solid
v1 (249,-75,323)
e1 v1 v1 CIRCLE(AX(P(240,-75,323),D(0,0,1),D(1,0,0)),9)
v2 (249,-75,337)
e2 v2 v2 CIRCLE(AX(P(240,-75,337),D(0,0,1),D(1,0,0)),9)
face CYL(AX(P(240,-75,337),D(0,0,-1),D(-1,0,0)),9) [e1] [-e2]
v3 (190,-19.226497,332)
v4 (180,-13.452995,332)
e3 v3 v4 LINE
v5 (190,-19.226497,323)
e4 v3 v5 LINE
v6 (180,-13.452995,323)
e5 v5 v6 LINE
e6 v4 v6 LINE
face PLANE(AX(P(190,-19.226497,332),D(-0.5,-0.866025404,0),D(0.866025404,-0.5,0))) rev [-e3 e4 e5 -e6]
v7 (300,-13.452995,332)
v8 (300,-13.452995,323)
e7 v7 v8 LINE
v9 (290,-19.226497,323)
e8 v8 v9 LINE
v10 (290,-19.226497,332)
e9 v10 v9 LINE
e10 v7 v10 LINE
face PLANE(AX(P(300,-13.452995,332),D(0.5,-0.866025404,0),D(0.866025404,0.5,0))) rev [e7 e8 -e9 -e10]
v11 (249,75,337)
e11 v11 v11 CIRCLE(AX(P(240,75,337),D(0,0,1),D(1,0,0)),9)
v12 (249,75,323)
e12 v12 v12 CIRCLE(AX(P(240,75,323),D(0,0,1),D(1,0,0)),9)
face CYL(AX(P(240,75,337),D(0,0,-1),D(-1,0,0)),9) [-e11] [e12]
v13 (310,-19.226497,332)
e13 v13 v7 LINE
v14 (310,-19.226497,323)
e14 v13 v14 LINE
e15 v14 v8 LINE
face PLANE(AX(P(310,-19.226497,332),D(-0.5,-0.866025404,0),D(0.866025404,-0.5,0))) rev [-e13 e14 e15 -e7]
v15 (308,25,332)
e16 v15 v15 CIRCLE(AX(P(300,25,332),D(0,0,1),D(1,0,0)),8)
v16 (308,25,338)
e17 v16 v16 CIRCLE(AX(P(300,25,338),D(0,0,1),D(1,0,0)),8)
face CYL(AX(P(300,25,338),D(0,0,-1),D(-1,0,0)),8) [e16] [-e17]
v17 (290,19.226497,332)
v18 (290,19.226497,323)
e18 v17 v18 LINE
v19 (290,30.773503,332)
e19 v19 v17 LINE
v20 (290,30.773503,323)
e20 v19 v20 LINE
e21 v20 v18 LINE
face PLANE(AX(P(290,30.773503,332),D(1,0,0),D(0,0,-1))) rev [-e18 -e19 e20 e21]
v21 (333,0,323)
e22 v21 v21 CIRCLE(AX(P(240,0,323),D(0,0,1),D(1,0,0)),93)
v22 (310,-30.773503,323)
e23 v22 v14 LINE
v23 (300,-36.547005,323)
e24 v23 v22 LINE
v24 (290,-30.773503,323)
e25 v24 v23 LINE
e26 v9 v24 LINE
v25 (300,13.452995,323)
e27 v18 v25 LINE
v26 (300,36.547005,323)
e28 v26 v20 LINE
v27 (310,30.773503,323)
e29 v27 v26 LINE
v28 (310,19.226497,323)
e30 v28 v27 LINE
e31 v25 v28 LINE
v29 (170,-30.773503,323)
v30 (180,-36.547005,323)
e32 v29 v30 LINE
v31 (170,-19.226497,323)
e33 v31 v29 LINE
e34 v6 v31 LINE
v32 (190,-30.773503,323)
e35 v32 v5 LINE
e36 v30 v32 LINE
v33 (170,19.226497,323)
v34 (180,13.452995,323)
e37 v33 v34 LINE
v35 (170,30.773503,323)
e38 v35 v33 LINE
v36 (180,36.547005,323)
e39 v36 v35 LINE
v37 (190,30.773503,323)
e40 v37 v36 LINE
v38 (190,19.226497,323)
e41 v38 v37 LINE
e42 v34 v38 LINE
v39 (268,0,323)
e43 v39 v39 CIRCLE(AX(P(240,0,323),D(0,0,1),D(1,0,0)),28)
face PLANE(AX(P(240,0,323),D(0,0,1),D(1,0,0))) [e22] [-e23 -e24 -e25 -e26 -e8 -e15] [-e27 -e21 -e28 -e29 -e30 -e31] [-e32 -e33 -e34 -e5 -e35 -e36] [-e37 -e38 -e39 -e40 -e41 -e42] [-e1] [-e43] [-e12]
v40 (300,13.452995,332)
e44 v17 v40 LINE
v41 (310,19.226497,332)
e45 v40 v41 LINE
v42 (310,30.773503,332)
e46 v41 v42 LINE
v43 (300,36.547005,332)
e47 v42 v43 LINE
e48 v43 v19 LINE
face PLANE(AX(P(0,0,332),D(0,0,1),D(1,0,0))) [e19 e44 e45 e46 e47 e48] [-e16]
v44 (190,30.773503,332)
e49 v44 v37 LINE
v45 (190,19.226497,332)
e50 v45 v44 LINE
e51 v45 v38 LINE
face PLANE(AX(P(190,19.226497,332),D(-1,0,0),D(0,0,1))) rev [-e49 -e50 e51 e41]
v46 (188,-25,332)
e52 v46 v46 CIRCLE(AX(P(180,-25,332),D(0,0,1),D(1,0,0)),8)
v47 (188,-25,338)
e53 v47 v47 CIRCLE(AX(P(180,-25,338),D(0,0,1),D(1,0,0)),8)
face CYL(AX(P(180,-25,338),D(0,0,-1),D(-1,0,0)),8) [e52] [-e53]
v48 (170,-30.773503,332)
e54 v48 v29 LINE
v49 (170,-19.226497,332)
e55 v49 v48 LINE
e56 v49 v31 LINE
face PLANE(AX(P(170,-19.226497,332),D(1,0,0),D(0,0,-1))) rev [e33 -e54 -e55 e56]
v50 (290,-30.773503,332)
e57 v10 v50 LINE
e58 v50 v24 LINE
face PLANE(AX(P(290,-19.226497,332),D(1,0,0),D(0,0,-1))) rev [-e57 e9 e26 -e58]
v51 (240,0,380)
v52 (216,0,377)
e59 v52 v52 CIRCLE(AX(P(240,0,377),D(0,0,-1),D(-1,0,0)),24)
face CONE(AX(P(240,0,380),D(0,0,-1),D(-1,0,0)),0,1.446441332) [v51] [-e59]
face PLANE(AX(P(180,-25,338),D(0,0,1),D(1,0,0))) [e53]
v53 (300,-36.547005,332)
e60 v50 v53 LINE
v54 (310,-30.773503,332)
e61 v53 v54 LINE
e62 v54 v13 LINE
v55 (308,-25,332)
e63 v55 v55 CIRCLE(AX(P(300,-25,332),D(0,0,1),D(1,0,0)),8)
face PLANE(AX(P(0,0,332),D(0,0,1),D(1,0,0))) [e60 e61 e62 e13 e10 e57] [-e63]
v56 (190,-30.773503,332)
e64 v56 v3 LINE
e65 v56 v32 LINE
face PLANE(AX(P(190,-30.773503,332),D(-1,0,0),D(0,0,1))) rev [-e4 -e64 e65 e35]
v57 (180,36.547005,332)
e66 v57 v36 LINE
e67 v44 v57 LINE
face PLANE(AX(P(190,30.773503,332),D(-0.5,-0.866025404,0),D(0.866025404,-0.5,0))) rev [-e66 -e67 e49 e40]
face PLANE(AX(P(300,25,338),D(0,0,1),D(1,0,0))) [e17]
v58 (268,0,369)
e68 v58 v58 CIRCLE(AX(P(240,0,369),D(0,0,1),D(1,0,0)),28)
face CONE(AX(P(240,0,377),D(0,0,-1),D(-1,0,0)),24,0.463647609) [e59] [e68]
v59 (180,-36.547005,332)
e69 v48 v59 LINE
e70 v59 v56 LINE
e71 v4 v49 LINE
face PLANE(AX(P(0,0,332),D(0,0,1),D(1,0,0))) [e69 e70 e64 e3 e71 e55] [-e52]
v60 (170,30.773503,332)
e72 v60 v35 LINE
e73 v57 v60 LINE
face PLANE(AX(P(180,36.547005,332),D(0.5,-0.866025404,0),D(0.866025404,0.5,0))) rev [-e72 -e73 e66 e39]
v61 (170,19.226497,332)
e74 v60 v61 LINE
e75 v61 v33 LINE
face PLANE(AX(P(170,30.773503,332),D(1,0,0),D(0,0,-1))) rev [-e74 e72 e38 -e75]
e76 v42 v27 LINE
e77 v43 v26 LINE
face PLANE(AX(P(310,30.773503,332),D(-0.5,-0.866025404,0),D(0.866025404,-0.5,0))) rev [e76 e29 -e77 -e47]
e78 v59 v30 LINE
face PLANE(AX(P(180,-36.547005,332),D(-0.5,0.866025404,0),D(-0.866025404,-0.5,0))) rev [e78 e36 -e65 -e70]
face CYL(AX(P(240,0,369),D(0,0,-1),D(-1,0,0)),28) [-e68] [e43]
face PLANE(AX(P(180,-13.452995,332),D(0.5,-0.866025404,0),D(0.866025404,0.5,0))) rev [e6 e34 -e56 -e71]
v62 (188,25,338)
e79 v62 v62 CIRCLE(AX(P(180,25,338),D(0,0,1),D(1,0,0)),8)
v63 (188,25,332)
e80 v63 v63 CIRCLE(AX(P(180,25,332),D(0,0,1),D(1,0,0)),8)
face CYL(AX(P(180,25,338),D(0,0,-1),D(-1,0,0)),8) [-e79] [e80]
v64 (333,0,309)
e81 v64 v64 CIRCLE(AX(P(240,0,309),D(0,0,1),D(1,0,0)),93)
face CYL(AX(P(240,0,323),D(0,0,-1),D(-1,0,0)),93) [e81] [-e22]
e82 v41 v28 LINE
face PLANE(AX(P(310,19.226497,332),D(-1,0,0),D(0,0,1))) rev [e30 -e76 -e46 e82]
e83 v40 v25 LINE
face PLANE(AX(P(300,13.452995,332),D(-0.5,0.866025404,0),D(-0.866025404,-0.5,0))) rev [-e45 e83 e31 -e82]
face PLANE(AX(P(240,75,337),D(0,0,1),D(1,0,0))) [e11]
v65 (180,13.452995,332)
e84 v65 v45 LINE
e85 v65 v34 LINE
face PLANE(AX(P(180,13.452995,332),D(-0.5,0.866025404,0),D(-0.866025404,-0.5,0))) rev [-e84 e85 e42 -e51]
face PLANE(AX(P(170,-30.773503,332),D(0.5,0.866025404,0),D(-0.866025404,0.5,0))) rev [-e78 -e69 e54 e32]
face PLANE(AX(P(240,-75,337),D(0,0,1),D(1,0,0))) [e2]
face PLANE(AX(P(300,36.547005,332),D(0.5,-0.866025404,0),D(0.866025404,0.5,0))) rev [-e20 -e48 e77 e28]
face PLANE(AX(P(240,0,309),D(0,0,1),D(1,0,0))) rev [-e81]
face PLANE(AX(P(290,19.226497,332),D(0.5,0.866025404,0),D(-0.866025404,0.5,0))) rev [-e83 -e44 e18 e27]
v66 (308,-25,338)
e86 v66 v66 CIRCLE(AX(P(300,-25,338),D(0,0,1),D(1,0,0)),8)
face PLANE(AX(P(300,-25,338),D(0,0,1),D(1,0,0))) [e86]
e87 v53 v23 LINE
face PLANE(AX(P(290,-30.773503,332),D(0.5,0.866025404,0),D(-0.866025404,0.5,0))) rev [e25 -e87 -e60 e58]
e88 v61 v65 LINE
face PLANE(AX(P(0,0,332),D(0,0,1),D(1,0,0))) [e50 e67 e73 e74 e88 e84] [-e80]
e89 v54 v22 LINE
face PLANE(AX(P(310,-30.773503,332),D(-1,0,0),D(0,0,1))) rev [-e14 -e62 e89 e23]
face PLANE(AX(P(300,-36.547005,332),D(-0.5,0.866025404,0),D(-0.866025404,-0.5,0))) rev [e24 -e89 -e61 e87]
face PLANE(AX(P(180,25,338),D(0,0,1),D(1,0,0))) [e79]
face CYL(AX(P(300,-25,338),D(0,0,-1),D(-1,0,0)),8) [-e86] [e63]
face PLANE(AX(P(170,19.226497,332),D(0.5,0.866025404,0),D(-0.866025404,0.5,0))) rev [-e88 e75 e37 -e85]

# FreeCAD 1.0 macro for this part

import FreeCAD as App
import Part
import Sketcher

V = App.Vector
Q = App.Units.Quantity


def add_polygon(sketch, points):
    """Adds a closed chain of lines whose ends are joined by coincident constraints."""
    first, n = sketch.GeometryCount, len(points)
    for a, b in zip(points, points[1:] + points[:1]):
        sketch.addGeometry(Part.LineSegment(App.Vector(*a, 0), App.Vector(*b, 0)), False)
    for i in range(n):
        sketch.addConstraint(Sketcher.Constraint("Coincident", first + i, 2, first + (i + 1) % n, 1))

doc = App.newDocument("Part")
body = doc.addObject("PartDesign::Body", "Body")

# Sketch on XY plane
sketch1 = body.newObject("Sketcher::SketchObject", "Sketch")
sketch1.AttachmentSupport = (doc.getObject("XY_Plane"), [""])
sketch1.MapMode = "FlatFace"
sketch1.AttachmentOffset = App.Placement(V(0, 0, 309), App.Rotation())
sketch1.addGeometry(Part.Circle(V(240, 0, 0), V(0, 0, 1), 93), False)
sketch1.addConstraint([
    Sketcher.Constraint("PointOnObject", 0, 3, -1),
    Sketcher.Constraint("Diameter", 0, 186.0),
    Sketcher.Constraint("DistanceX", -1, 1, 0, 3, 240.0),
])
pad1 = body.newObject("PartDesign::Pad", "Pad")
pad1.Profile = sketch1
pad1.Length = 14
body2 = doc.addObject("PartDesign::Body", "Body001")

# Sketch on XY plane
sketch2 = body2.newObject("Sketcher::SketchObject", "Sketch001")
sketch2.AttachmentSupport = (doc.getObject("XY_Plane001"), [""])
sketch2.MapMode = "FlatFace"
sketch2.AttachmentOffset = App.Placement(V(0, 0, 323), App.Rotation())
sketch2.addGeometry(Part.Circle(V(240, 0, 0), V(0, 0, 1), 28), False)
sketch2.addConstraint([
    Sketcher.Constraint("PointOnObject", 0, 3, -1),
    Sketcher.Constraint("Diameter", 0, 56.0),
    Sketcher.Constraint("DistanceX", -1, 1, 0, 3, 240.0),
])
pad2 = body2.newObject("PartDesign::Pad", "Pad001")
pad2.Profile = sketch2
pad2.Length = 46
body3 = doc.addObject("PartDesign::Body", "Body002")

# Sketch on XZ plane
sketch3 = body3.newObject("Sketcher::SketchObject", "Sketch002")
sketch3.AttachmentSupport = (doc.getObject("XZ_Plane002"), [""])
sketch3.MapMode = "FlatFace"
add_polygon(sketch3, [(268, 369), (240, 369), (240, 380), (264, 377)])  # lines 0-3
sketch3.addGeometry(Part.LineSegment(V(240, 369, 0), V(240, 380, 0)), True)  # axis
sketch3.addConstraint([
    Sketcher.Constraint("Horizontal", 0),
    Sketcher.Constraint("Vertical", 1),
    Sketcher.Constraint("Vertical", 4),
    Sketcher.Constraint("Coincident", 4, 1, 0, 2),
    Sketcher.Constraint("Equal", 1, 4),
    Sketcher.Constraint("DistanceX", 0, 2, 0, 1, 28.0),
    Sketcher.Constraint("DistanceY", 1, 1, 1, 2, 11.0),
    Sketcher.Constraint("DistanceX", -1, 1, 0, 2, 240.0),
    Sketcher.Constraint("DistanceY", -1, 1, 0, 2, 369.0),
    Sketcher.Constraint("DistanceX", -1, 1, 2, 2, 264.0),
    Sketcher.Constraint("DistanceY", -1, 1, 2, 2, 377.0),
])
revolution = body3.newObject("PartDesign::Revolution", "Revolution")
revolution.Profile = sketch3
revolution.ReferenceAxis = (sketch3, ["Axis0"])
revolution.Angle = 360
body4 = doc.addObject("PartDesign::Body", "Body003")

# Sketch on XY plane
sketch4 = body4.newObject("Sketcher::SketchObject", "Sketch003")
sketch4.AttachmentSupport = (doc.getObject("XY_Plane003"), [""])
sketch4.MapMode = "FlatFace"
sketch4.AttachmentOffset = App.Placement(V(0, 0, 323), App.Rotation())
add_polygon(sketch4, [(310, 31), (300, 37), (290, 31), (290, 19), (300, 13), (310, 19)])  # lines 0-5
sketch4.addConstraint([
    Sketcher.Constraint("Vertical", 2),
    Sketcher.Constraint("Vertical", 5),
    Sketcher.Constraint("Parallel", 0, 3),
    Sketcher.Constraint("Parallel", 1, 4),
    Sketcher.Constraint("Horizontal", 2, 2, 4, 2),
    Sketcher.Constraint("Horizontal", 1, 2, 5, 2),
    Sketcher.Constraint("Vertical", 0, 2, 3, 2),
    Sketcher.Constraint("Angle", 0, Q("150 deg")),
    Sketcher.Constraint("DistanceX", -1, 1, 0, 2, 300.0),
    Sketcher.Constraint("DistanceX", -1, 1, 1, 2, 290.0),
    Sketcher.Constraint("DistanceY", 2, 2, 2, 1, 11.547005),
    Sketcher.Constraint("DistanceY", -1, 1, 0, 2, 36.547005),
])
pad3 = body4.newObject("PartDesign::Pad", "Pad002")
pad3.Profile = sketch4
pad3.Length = 9
body5 = doc.addObject("PartDesign::Body", "Body004")

# Sketch on XY plane
sketch5 = body5.newObject("Sketcher::SketchObject", "Sketch004")
sketch5.AttachmentSupport = (doc.getObject("XY_Plane004"), [""])
sketch5.MapMode = "FlatFace"
sketch5.AttachmentOffset = App.Placement(V(0, 0, 332), App.Rotation())
sketch5.addGeometry(Part.Circle(V(300, 25, 0), V(0, 0, 1), 8), False)
sketch5.addConstraint([
    Sketcher.Constraint("Diameter", 0, 16.0),
    Sketcher.Constraint("DistanceX", -1, 1, 0, 3, 300.0),
    Sketcher.Constraint("DistanceY", -1, 1, 0, 3, 25.0),
])
pad4 = body5.newObject("PartDesign::Pad", "Pad003")
pad4.Profile = sketch5
pad4.Length = 6
body6 = doc.addObject("PartDesign::Body", "Body005")

# Sketch on XY plane
sketch6 = body6.newObject("Sketcher::SketchObject", "Sketch005")
sketch6.AttachmentSupport = (doc.getObject("XY_Plane005"), [""])
sketch6.MapMode = "FlatFace"
sketch6.AttachmentOffset = App.Placement(V(0, 0, 323), App.Rotation())
add_polygon(sketch6, [(310, -19), (300, -13), (290, -19), (290, -31), (300, -37), (310, -31)])  # lines 0-5
sketch6.addConstraint([
    Sketcher.Constraint("Vertical", 2),
    Sketcher.Constraint("Vertical", 5),
    Sketcher.Constraint("Parallel", 0, 3),
    Sketcher.Constraint("Parallel", 1, 4),
    Sketcher.Constraint("Horizontal", 2, 2, 4, 2),
    Sketcher.Constraint("Horizontal", 1, 2, 5, 2),
    Sketcher.Constraint("Vertical", 0, 2, 3, 2),
    Sketcher.Constraint("Angle", 0, Q("150 deg")),
    Sketcher.Constraint("DistanceX", -1, 1, 0, 2, 300.0),
    Sketcher.Constraint("DistanceX", -1, 1, 1, 2, 290.0),
    Sketcher.Constraint("DistanceY", 2, 2, 2, 1, 11.547005),
    Sketcher.Constraint("DistanceY", 0, 2, -1, 1, 13.452995),
])
pad5 = body6.newObject("PartDesign::Pad", "Pad004")
pad5.Profile = sketch6
pad5.Length = 9
body7 = doc.addObject("PartDesign::Body", "Body006")

# Sketch on XY plane
sketch7 = body7.newObject("Sketcher::SketchObject", "Sketch006")
sketch7.AttachmentSupport = (doc.getObject("XY_Plane006"), [""])
sketch7.MapMode = "FlatFace"
sketch7.AttachmentOffset = App.Placement(V(0, 0, 332), App.Rotation())
sketch7.addGeometry(Part.Circle(V(300, -25, 0), V(0, 0, 1), 8), False)
sketch7.addConstraint([
    Sketcher.Constraint("Diameter", 0, 16.0),
    Sketcher.Constraint("DistanceX", -1, 1, 0, 3, 300.0),
    Sketcher.Constraint("DistanceY", 0, 3, -1, 1, 25.0),
])
pad6 = body7.newObject("PartDesign::Pad", "Pad005")
pad6.Profile = sketch7
pad6.Length = 6
body8 = doc.addObject("PartDesign::Body", "Body007")

# Sketch on XY plane
sketch8 = body8.newObject("Sketcher::SketchObject", "Sketch007")
sketch8.AttachmentSupport = (doc.getObject("XY_Plane007"), [""])
sketch8.MapMode = "FlatFace"
sketch8.AttachmentOffset = App.Placement(V(0, 0, 323), App.Rotation())
add_polygon(sketch8, [(190, 31), (180, 37), (170, 31), (170, 19), (180, 13), (190, 19)])  # lines 0-5
sketch8.addConstraint([
    Sketcher.Constraint("Vertical", 2),
    Sketcher.Constraint("Vertical", 5),
    Sketcher.Constraint("Parallel", 0, 3),
    Sketcher.Constraint("Parallel", 1, 4),
    Sketcher.Constraint("Horizontal", 2, 2, 4, 2),
    Sketcher.Constraint("Horizontal", 1, 2, 5, 2),
    Sketcher.Constraint("Vertical", 0, 2, 3, 2),
    Sketcher.Constraint("Angle", 0, Q("150 deg")),
    Sketcher.Constraint("DistanceX", -1, 1, 0, 2, 180.0),
    Sketcher.Constraint("DistanceX", -1, 1, 1, 2, 170.0),
    Sketcher.Constraint("DistanceY", 2, 2, 2, 1, 11.547005),
    Sketcher.Constraint("DistanceY", -1, 1, 0, 2, 36.547005),
])
pad7 = body8.newObject("PartDesign::Pad", "Pad006")
pad7.Profile = sketch8
pad7.Length = 9
body9 = doc.addObject("PartDesign::Body", "Body008")

# Sketch on XY plane
sketch9 = body9.newObject("Sketcher::SketchObject", "Sketch008")
sketch9.AttachmentSupport = (doc.getObject("XY_Plane008"), [""])
sketch9.MapMode = "FlatFace"
sketch9.AttachmentOffset = App.Placement(V(0, 0, 332), App.Rotation())
sketch9.addGeometry(Part.Circle(V(180, 25, 0), V(0, 0, 1), 8), False)
sketch9.addConstraint([
    Sketcher.Constraint("Diameter", 0, 16.0),
    Sketcher.Constraint("DistanceX", -1, 1, 0, 3, 180.0),
    Sketcher.Constraint("DistanceY", -1, 1, 0, 3, 25.0),
])
pad8 = body9.newObject("PartDesign::Pad", "Pad007")
pad8.Profile = sketch9
pad8.Length = 6
body10 = doc.addObject("PartDesign::Body", "Body009")

# Sketch on XY plane
sketch10 = body10.newObject("Sketcher::SketchObject", "Sketch009")
sketch10.AttachmentSupport = (doc.getObject("XY_Plane009"), [""])
sketch10.MapMode = "FlatFace"
sketch10.AttachmentOffset = App.Placement(V(0, 0, 323), App.Rotation())
add_polygon(sketch10, [(190, -19), (180, -13), (170, -19), (170, -31), (180, -37), (190, -31)])  # lines 0-5
sketch10.addConstraint([
    Sketcher.Constraint("Vertical", 2),
    Sketcher.Constraint("Vertical", 5),
    Sketcher.Constraint("Parallel", 0, 3),
    Sketcher.Constraint("Parallel", 1, 4),
    Sketcher.Constraint("Horizontal", 2, 2, 4, 2),
    Sketcher.Constraint("Horizontal", 1, 2, 5, 2),
    Sketcher.Constraint("Vertical", 0, 2, 3, 2),
    Sketcher.Constraint("Angle", 0, Q("150 deg")),
    Sketcher.Constraint("DistanceX", -1, 1, 0, 2, 180.0),
    Sketcher.Constraint("DistanceX", -1, 1, 1, 2, 170.0),
    Sketcher.Constraint("DistanceY", 2, 2, 2, 1, 11.547005),
    Sketcher.Constraint("DistanceY", 0, 2, -1, 1, 13.452995),
])
pad9 = body10.newObject("PartDesign::Pad", "Pad008")
pad9.Profile = sketch10
pad9.Length = 9
body11 = doc.addObject("PartDesign::Body", "Body010")

# Sketch on XY plane
sketch11 = body11.newObject("Sketcher::SketchObject", "Sketch010")
sketch11.AttachmentSupport = (doc.getObject("XY_Plane010"), [""])
sketch11.MapMode = "FlatFace"
sketch11.AttachmentOffset = App.Placement(V(0, 0, 332), App.Rotation())
sketch11.addGeometry(Part.Circle(V(180, -25, 0), V(0, 0, 1), 8), False)
sketch11.addConstraint([
    Sketcher.Constraint("Diameter", 0, 16.0),
    Sketcher.Constraint("DistanceX", -1, 1, 0, 3, 180.0),
    Sketcher.Constraint("DistanceY", 0, 3, -1, 1, 25.0),
])
pad10 = body11.newObject("PartDesign::Pad", "Pad009")
pad10.Profile = sketch11
pad10.Length = 6
body12 = doc.addObject("PartDesign::Body", "Body011")

# Sketch on XY plane
sketch12 = body12.newObject("Sketcher::SketchObject", "Sketch011")
sketch12.AttachmentSupport = (doc.getObject("XY_Plane011"), [""])
sketch12.MapMode = "FlatFace"
sketch12.AttachmentOffset = App.Placement(V(0, 0, 323), App.Rotation())
sketch12.addGeometry(Part.Circle(V(240, 75, 0), V(0, 0, 1), 9), False)
sketch12.addConstraint([
    Sketcher.Constraint("Diameter", 0, 18.0),
    Sketcher.Constraint("DistanceX", -1, 1, 0, 3, 240.0),
    Sketcher.Constraint("DistanceY", -1, 1, 0, 3, 75.0),
])
pad11 = body12.newObject("PartDesign::Pad", "Pad010")
pad11.Profile = sketch12
pad11.Length = 14
body13 = doc.addObject("PartDesign::Body", "Body012")

# Sketch on XY plane
sketch13 = body13.newObject("Sketcher::SketchObject", "Sketch012")
sketch13.AttachmentSupport = (doc.getObject("XY_Plane012"), [""])
sketch13.MapMode = "FlatFace"
sketch13.AttachmentOffset = App.Placement(V(0, 0, 323), App.Rotation())
sketch13.addGeometry(Part.Circle(V(240, -75, 0), V(0, 0, 1), 9), False)
sketch13.addConstraint([
    Sketcher.Constraint("Diameter", 0, 18.0),
    Sketcher.Constraint("DistanceX", -1, 1, 0, 3, 240.0),
    Sketcher.Constraint("DistanceY", 0, 3, -1, 1, 75.0),
])
pad12 = body13.newObject("PartDesign::Pad", "Pad011")
pad12.Profile = sketch13
pad12.Length = 14
body10.AllowCompound = True
doc.recompute()

boolean = body10.newObject("PartDesign::Boolean", "Boolean")
boolean.Type = "Fuse"
boolean.addObjects([body4])
doc.recompute()

boolean2 = body10.newObject("PartDesign::Boolean", "Boolean001")
boolean2.Type = "Fuse"
boolean2.addObjects([body9])
doc.recompute()

boolean3 = body10.newObject("PartDesign::Boolean", "Boolean002")
boolean3.Type = "Fuse"
boolean3.addObjects([body5])
doc.recompute()

boolean4 = body10.newObject("PartDesign::Boolean", "Boolean003")
boolean4.Type = "Fuse"
boolean4.addObjects([body11])
doc.recompute()

boolean5 = body10.newObject("PartDesign::Boolean", "Boolean004")
boolean5.Type = "Fuse"
boolean5.addObjects([body2])
doc.recompute()

boolean6 = body10.newObject("PartDesign::Boolean", "Boolean005")
boolean6.Type = "Fuse"
boolean6.addObjects([body12])
doc.recompute()

boolean7 = body10.newObject("PartDesign::Boolean", "Boolean006")
boolean7.Type = "Fuse"
boolean7.addObjects([body8])
doc.recompute()

boolean8 = body10.newObject("PartDesign::Boolean", "Boolean007")
boolean8.Type = "Fuse"
boolean8.addObjects([body6])
doc.recompute()

boolean9 = body10.newObject("PartDesign::Boolean", "Boolean008")
boolean9.Type = "Fuse"
boolean9.addObjects([body3])
doc.recompute()

boolean10 = body10.newObject("PartDesign::Boolean", "Boolean009")
boolean10.Type = "Fuse"
boolean10.addObjects([body13])
doc.recompute()

boolean11 = body10.newObject("PartDesign::Boolean", "Boolean010")
boolean11.Type = "Fuse"
boolean11.addObjects([body7])
doc.recompute()

boolean12 = body10.newObject("PartDesign::Boolean", "Boolean011")
boolean12.Type = "Fuse"
boolean12.addObjects([body])

doc.recompute()
